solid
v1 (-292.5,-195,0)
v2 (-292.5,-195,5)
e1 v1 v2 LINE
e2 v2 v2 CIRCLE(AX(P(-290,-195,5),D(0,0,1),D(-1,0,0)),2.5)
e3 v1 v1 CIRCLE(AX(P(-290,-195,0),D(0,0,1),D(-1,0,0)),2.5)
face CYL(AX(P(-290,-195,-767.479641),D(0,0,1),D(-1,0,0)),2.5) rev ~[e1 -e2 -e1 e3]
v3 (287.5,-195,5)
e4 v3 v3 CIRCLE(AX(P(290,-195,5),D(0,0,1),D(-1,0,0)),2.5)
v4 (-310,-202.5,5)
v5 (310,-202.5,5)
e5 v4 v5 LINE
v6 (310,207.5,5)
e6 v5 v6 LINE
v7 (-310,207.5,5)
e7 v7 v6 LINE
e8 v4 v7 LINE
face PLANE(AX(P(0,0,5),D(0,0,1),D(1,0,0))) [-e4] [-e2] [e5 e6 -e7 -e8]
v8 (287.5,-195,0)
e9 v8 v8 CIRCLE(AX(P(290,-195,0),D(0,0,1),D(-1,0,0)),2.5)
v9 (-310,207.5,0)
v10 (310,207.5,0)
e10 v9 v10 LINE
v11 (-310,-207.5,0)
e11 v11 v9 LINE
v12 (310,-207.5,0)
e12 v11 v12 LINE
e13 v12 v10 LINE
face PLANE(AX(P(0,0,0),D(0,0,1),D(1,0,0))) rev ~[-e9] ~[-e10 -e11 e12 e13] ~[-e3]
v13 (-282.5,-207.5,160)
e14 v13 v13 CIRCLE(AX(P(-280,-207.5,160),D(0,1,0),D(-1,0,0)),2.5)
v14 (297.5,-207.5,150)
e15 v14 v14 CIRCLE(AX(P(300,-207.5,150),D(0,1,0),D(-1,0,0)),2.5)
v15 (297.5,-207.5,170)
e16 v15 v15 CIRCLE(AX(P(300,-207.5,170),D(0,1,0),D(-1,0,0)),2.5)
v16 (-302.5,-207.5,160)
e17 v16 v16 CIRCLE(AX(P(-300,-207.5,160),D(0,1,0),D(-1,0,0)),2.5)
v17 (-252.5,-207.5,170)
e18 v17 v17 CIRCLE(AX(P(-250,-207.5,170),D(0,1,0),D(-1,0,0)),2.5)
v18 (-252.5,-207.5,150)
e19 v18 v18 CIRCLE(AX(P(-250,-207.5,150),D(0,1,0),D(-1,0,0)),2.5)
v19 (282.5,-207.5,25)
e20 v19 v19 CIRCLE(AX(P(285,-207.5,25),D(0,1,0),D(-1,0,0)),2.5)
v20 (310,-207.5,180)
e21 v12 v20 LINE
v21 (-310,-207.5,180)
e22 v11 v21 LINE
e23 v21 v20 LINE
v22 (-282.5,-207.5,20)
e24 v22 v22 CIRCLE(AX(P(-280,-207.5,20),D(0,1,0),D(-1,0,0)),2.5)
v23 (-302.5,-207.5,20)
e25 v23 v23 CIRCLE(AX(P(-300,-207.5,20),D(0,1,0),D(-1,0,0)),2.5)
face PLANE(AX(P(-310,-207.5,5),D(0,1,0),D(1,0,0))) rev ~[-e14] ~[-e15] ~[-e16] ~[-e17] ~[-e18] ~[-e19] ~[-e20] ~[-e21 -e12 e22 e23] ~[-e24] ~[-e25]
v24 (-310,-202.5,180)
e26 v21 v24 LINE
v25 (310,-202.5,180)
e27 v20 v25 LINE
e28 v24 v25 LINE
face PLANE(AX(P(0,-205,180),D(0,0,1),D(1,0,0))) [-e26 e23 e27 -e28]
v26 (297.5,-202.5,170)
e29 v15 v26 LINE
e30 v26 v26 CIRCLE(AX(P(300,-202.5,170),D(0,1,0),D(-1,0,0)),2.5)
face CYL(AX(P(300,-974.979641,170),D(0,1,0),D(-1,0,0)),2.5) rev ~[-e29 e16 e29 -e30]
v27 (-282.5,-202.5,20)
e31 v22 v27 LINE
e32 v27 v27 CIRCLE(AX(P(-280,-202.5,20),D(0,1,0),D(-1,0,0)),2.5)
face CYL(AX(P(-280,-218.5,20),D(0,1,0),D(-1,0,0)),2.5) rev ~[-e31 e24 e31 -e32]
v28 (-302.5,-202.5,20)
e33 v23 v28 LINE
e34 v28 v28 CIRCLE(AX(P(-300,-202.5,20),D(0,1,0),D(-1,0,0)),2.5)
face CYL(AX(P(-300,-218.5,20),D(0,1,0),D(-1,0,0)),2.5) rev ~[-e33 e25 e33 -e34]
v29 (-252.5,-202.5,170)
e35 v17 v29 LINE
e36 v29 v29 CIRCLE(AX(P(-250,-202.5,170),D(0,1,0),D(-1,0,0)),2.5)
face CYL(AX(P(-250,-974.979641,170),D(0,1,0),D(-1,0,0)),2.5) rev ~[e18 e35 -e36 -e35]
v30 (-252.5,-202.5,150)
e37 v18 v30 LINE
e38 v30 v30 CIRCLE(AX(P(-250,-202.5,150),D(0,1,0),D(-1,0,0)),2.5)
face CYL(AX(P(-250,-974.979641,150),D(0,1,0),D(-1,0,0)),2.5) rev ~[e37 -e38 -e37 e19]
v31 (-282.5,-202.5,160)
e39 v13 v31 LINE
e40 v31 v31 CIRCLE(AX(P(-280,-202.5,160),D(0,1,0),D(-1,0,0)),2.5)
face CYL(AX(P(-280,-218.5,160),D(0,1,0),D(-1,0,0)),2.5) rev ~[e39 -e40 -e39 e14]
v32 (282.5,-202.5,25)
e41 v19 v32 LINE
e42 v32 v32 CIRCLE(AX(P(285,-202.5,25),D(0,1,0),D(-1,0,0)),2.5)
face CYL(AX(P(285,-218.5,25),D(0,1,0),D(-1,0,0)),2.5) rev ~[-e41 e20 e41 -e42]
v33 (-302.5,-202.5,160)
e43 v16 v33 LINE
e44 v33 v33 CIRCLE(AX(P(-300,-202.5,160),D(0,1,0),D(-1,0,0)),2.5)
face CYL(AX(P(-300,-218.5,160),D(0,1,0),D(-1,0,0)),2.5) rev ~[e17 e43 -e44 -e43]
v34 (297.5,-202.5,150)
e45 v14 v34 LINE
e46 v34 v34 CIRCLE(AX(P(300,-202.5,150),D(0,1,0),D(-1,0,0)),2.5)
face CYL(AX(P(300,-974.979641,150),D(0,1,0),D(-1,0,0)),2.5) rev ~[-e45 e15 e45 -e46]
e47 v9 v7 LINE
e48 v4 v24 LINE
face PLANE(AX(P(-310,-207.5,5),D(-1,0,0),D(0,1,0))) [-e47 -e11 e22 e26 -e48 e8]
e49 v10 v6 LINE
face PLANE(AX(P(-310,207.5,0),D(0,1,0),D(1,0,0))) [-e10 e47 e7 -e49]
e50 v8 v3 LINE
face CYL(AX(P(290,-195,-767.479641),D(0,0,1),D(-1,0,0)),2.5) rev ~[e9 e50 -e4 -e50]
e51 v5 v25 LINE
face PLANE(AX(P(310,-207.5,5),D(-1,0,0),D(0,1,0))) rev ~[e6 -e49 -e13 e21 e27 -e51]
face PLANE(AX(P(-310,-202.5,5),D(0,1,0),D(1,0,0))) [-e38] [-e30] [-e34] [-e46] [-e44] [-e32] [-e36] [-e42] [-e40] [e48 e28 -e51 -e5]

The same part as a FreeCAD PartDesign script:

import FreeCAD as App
import Part
import Sketcher
from FreeCAD import Vector
Q = App.Units.Quantity


def add_polygon(sketch, points):
    """Adds a closed chain of lines whose ends are joined by coincident constraints."""
    first, n = sketch.GeometryCount, len(points)
    for a, b in zip(points, points[1:] + points[:1]):
        sketch.addGeometry(Part.LineSegment(App.Vector(*a, 0), App.Vector(*b, 0)), False)
    for i in range(n):
        sketch.addConstraint(Sketcher.Constraint("Coincident", first + i, 2, first + (i + 1) % n, 1))

doc = App.newDocument("Part")
body = doc.addObject("PartDesign::Body", "Body")

# Sketch on XY plane
sketch1 = body.newObject("Sketcher::SketchObject", "Sketch")
sketch1.AttachmentSupport = (doc.getObject("XY_Plane"), [""])
sketch1.MapMode = "FlatFace"
add_polygon(sketch1, [(-310, 208), (-310, -208), (310, -208), (310, 208)])  # lines 0-3
sketch1.addConstraint(Sketcher.Constraint("Vertical", 0))
sketch1.addConstraint(Sketcher.Constraint("Horizontal", 1))
sketch1.addConstraint(Sketcher.Constraint("Vertical", 2))
sketch1.addConstraint(Sketcher.Constraint("Horizontal", 3))
sketch1.addConstraint(Sketcher.Constraint("Symmetric", 0, 2, 2, 2, -1, 1))
sketch1.addConstraint(Sketcher.Constraint("DistanceX", 1, 1, 1, 2, Q("620 mm")))
sketch1.addConstraint(Sketcher.Constraint("DistanceY", 0, 2, 0, 1, Q("415 mm")))
pad1 = body.newObject("PartDesign::Pad", "Pad")
pad1.Profile = sketch1
pad1.Length = 5

# Sketch on XY plane
sketch2 = body.newObject("Sketcher::SketchObject", "Sketch001")
sketch2.AttachmentSupport = (doc.getObject("XY_Plane"), [""])
sketch2.MapMode = "FlatFace"
sketch2.AttachmentOffset = App.Placement(Vector(0, 0, 5), App.Rotation())
add_polygon(sketch2, [(-310, -202), (-310, -208), (310, -208), (310, -202)])  # lines 0-3
sketch2.addConstraint(Sketcher.Constraint("Vertical", 0))
sketch2.addConstraint(Sketcher.Constraint("Horizontal", 1))
sketch2.addConstraint(Sketcher.Constraint("Vertical", 2))
sketch2.addConstraint(Sketcher.Constraint("Horizontal", 3))
sketch2.addConstraint(Sketcher.Constraint("DistanceX", 1, 1, 1, 2, Q("620 mm")))
sketch2.addConstraint(Sketcher.Constraint("DistanceY", 0, 2, 0, 1, Q("5 mm")))
sketch2.addConstraint(Sketcher.Constraint("DistanceX", 0, 2, -1, 1, Q("310 mm")))
sketch2.addConstraint(Sketcher.Constraint("DistanceY", 0, 2, -1, 1, Q("207.5 mm")))
pad2 = body.newObject("PartDesign::Pad", "Pad001")
pad2.Profile = sketch2
pad2.Length = 175

# Sketch on XZ plane
sketch3 = body.newObject("Sketcher::SketchObject", "Sketch002")
sketch3.AttachmentSupport = (doc.getObject("XZ_Plane"), [""])
sketch3.MapMode = "FlatFace"
sketch3.AttachmentOffset = App.Placement(Vector(0, 0, 207.5), App.Rotation())
sketch3.addGeometry(Part.Circle(Vector(300, 170, 0), Vector(0, 0, 1), 2.5), False)
sketch3.addConstraint(Sketcher.Constraint("Diameter", 0, Q("5 mm")))
sketch3.addConstraint(Sketcher.Constraint("DistanceX", -1, 1, 0, 3, Q("300 mm")))
sketch3.addConstraint(Sketcher.Constraint("DistanceY", -1, 1, 0, 3, Q("170 mm")))
doc.recompute()
hole = body.newObject("PartDesign::Hole", "Hole")
hole.Profile = sketch3
hole.ThreadType = "None"
hole.Diameter = 5
hole.DepthType = "ThroughAll"

# Sketch on XZ plane
sketch4 = body.newObject("Sketcher::SketchObject", "Sketch003")
sketch4.AttachmentSupport = (doc.getObject("XZ_Plane"), [""])
sketch4.MapMode = "FlatFace"
sketch4.AttachmentOffset = App.Placement(Vector(0, 0, 207.5), App.Rotation())
sketch4.addGeometry(Part.Circle(Vector(300, 150, 0), Vector(0, 0, 1), 2.5), False)
sketch4.addConstraint(Sketcher.Constraint("Diameter", 0, Q("5 mm")))
sketch4.addConstraint(Sketcher.Constraint("DistanceX", -1, 1, 0, 3, Q("300 mm")))
sketch4.addConstraint(Sketcher.Constraint("DistanceY", -1, 1, 0, 3, Q("150 mm")))
doc.recompute()
hole2 = body.newObject("PartDesign::Hole", "Hole001")
hole2.Profile = sketch4
hole2.ThreadType = "None"
hole2.Diameter = 5
hole2.DepthType = "ThroughAll"

# Sketch on XZ plane
sketch5 = body.newObject("Sketcher::SketchObject", "Sketch004")
sketch5.AttachmentSupport = (doc.getObject("XZ_Plane"), [""])
sketch5.MapMode = "FlatFace"
sketch5.AttachmentOffset = App.Placement(Vector(0, 0, 207.5), App.Rotation())
sketch5.addGeometry(Part.Circle(Vector(-250, 170, 0), Vector(0, 0, 1), 2.5), False)
sketch5.addConstraint(Sketcher.Constraint("Diameter", 0, Q("5 mm")))
sketch5.addConstraint(Sketcher.Constraint("DistanceX", 0, 3, -1, 1, Q("250 mm")))
sketch5.addConstraint(Sketcher.Constraint("DistanceY", -1, 1, 0, 3, Q("170 mm")))
doc.recompute()
hole3 = body.newObject("PartDesign::Hole", "Hole002")
hole3.Profile = sketch5
hole3.ThreadType = "None"
hole3.Diameter = 5
hole3.DepthType = "ThroughAll"

# Sketch on XZ plane
sketch6 = body.newObject("Sketcher::SketchObject", "Sketch005")
sketch6.AttachmentSupport = (doc.getObject("XZ_Plane"), [""])
sketch6.MapMode = "FlatFace"
sketch6.AttachmentOffset = App.Placement(Vector(0, 0, 207.5), App.Rotation())
sketch6.addGeometry(Part.Circle(Vector(-250, 150, 0), Vector(0, 0, 1), 2.5), False)
sketch6.addConstraint(Sketcher.Constraint("Diameter", 0, Q("5 mm")))
sketch6.addConstraint(Sketcher.Constraint("DistanceX", 0, 3, -1, 1, Q("250 mm")))
sketch6.addConstraint(Sketcher.Constraint("DistanceY", -1, 1, 0, 3, Q("150 mm")))
doc.recompute()
hole4 = body.newObject("PartDesign::Hole", "Hole003")
hole4.Profile = sketch6
hole4.ThreadType = "None"
hole4.Diameter = 5
hole4.DepthType = "ThroughAll"

# Sketch on XY plane
sketch7 = body.newObject("Sketcher::SketchObject", "Sketch006")
sketch7.AttachmentSupport = (doc.getObject("XY_Plane"), [""])
sketch7.MapMode = "FlatFace"
sketch7.addGeometry(Part.Circle(Vector(290, -195, 0), Vector(0, 0, 1), 2.5), False)
sketch7.addConstraint(Sketcher.Constraint("Diameter", 0, Q("5 mm")))
sketch7.addConstraint(Sketcher.Constraint("DistanceX", -1, 1, 0, 3, Q("290 mm")))
sketch7.addConstraint(Sketcher.Constraint("DistanceY", 0, 3, -1, 1, Q("195 mm")))
doc.recompute()
hole5 = body.newObject("PartDesign::Hole", "Hole004")
hole5.Profile = sketch7
hole5.ThreadType = "None"
hole5.Diameter = 5
hole5.DepthType = "ThroughAll"
hole5.Reversed = True

# Sketch on XY plane
sketch8 = body.newObject("Sketcher::SketchObject", "Sketch007")
sketch8.AttachmentSupport = (doc.getObject("XY_Plane"), [""])
sketch8.MapMode = "FlatFace"
sketch8.addGeometry(Part.Circle(Vector(-290, -195, 0), Vector(0, 0, 1), 2.5), False)
sketch8.addConstraint(Sketcher.Constraint("Diameter", 0, Q("5 mm")))
sketch8.addConstraint(Sketcher.Constraint("DistanceX", 0, 3, -1, 1, Q("290 mm")))
sketch8.addConstraint(Sketcher.Constraint("DistanceY", 0, 3, -1, 1, Q("195 mm")))
doc.recompute()
hole6 = body.newObject("PartDesign::Hole", "Hole005")
hole6.Profile = sketch8
hole6.ThreadType = "None"
hole6.Diameter = 5
hole6.DepthType = "ThroughAll"
hole6.Reversed = True

# Sketch on XZ plane
sketch9 = body.newObject("Sketcher::SketchObject", "Sketch008")
sketch9.AttachmentSupport = (doc.getObject("XZ_Plane"), [""])
sketch9.MapMode = "FlatFace"
sketch9.AttachmentOffset = App.Placement(Vector(0, 0, 207.5), App.Rotation())
sketch9.addGeometry(Part.Circle(Vector(285, 25, 0), Vector(0, 0, 1), 2.5), False)
sketch9.addConstraint(Sketcher.Constraint("Diameter", 0, Q("5 mm")))
sketch9.addConstraint(Sketcher.Constraint("DistanceX", -1, 1, 0, 3, Q("285 mm")))
sketch9.addConstraint(Sketcher.Constraint("DistanceY", -1, 1, 0, 3, Q("25 mm")))
doc.recompute()
hole7 = body.newObject("PartDesign::Hole", "Hole006")
hole7.Profile = sketch9
hole7.ThreadType = "None"
hole7.Diameter = 5
hole7.DepthType = "Dimension"
hole7.Depth = 11
hole7.DrillPoint = "Flat"

# Sketch on XZ plane
sketch10 = body.newObject("Sketcher::SketchObject", "Sketch009")
sketch10.AttachmentSupport = (doc.getObject("XZ_Plane"), [""])
sketch10.MapMode = "FlatFace"
sketch10.AttachmentOffset = App.Placement(Vector(0, 0, 207.5), App.Rotation())
sketch10.addGeometry(Part.Circle(Vector(-300, 20, 0), Vector(0, 0, 1), 2.5), False)
sketch10.addGeometry(Part.Circle(Vector(-280, 20, 0), Vector(0, 0, 1), 2.5), False)
sketch10.addGeometry(Part.Circle(Vector(-300, 160, 0), Vector(0, 0, 1), 2.5), False)
sketch10.addGeometry(Part.Circle(Vector(-280, 160, 0), Vector(0, 0, 1), 2.5), False)
sketch10.addConstraint(Sketcher.Constraint("Equal", 0, 1))
sketch10.addConstraint(Sketcher.Constraint("Equal", 1, 2))
sketch10.addConstraint(Sketcher.Constraint("Equal", 2, 3))
sketch10.addConstraint(Sketcher.Constraint("Horizontal", 0, 3, 1, 3))
sketch10.addConstraint(Sketcher.Constraint("Horizontal", 2, 3, 3, 3))
sketch10.addConstraint(Sketcher.Constraint("Vertical", 0, 3, 2, 3))
sketch10.addConstraint(Sketcher.Constraint("Vertical", 1, 3, 3, 3))
sketch10.addConstraint(Sketcher.Constraint("Diameter", 0, Q("5 mm")))
sketch10.addConstraint(Sketcher.Constraint("DistanceX", 0, 3, -1, 1, Q("300 mm")))
sketch10.addConstraint(Sketcher.Constraint("DistanceY", -1, 1, 0, 3, Q("20 mm")))
sketch10.addConstraint(Sketcher.Constraint("DistanceX", 1, 3, -1, 1, Q("280 mm")))
sketch10.addConstraint(Sketcher.Constraint("DistanceY", -1, 1, 2, 3, Q("160 mm")))
doc.recompute()
hole8 = body.newObject("PartDesign::Hole", "Hole007")
hole8.Profile = sketch10
hole8.ThreadType = "None"
hole8.Diameter = 5
hole8.DepthType = "Dimension"
hole8.Depth = 11
hole8.DrillPoint = "Flat"

doc.recompute()
